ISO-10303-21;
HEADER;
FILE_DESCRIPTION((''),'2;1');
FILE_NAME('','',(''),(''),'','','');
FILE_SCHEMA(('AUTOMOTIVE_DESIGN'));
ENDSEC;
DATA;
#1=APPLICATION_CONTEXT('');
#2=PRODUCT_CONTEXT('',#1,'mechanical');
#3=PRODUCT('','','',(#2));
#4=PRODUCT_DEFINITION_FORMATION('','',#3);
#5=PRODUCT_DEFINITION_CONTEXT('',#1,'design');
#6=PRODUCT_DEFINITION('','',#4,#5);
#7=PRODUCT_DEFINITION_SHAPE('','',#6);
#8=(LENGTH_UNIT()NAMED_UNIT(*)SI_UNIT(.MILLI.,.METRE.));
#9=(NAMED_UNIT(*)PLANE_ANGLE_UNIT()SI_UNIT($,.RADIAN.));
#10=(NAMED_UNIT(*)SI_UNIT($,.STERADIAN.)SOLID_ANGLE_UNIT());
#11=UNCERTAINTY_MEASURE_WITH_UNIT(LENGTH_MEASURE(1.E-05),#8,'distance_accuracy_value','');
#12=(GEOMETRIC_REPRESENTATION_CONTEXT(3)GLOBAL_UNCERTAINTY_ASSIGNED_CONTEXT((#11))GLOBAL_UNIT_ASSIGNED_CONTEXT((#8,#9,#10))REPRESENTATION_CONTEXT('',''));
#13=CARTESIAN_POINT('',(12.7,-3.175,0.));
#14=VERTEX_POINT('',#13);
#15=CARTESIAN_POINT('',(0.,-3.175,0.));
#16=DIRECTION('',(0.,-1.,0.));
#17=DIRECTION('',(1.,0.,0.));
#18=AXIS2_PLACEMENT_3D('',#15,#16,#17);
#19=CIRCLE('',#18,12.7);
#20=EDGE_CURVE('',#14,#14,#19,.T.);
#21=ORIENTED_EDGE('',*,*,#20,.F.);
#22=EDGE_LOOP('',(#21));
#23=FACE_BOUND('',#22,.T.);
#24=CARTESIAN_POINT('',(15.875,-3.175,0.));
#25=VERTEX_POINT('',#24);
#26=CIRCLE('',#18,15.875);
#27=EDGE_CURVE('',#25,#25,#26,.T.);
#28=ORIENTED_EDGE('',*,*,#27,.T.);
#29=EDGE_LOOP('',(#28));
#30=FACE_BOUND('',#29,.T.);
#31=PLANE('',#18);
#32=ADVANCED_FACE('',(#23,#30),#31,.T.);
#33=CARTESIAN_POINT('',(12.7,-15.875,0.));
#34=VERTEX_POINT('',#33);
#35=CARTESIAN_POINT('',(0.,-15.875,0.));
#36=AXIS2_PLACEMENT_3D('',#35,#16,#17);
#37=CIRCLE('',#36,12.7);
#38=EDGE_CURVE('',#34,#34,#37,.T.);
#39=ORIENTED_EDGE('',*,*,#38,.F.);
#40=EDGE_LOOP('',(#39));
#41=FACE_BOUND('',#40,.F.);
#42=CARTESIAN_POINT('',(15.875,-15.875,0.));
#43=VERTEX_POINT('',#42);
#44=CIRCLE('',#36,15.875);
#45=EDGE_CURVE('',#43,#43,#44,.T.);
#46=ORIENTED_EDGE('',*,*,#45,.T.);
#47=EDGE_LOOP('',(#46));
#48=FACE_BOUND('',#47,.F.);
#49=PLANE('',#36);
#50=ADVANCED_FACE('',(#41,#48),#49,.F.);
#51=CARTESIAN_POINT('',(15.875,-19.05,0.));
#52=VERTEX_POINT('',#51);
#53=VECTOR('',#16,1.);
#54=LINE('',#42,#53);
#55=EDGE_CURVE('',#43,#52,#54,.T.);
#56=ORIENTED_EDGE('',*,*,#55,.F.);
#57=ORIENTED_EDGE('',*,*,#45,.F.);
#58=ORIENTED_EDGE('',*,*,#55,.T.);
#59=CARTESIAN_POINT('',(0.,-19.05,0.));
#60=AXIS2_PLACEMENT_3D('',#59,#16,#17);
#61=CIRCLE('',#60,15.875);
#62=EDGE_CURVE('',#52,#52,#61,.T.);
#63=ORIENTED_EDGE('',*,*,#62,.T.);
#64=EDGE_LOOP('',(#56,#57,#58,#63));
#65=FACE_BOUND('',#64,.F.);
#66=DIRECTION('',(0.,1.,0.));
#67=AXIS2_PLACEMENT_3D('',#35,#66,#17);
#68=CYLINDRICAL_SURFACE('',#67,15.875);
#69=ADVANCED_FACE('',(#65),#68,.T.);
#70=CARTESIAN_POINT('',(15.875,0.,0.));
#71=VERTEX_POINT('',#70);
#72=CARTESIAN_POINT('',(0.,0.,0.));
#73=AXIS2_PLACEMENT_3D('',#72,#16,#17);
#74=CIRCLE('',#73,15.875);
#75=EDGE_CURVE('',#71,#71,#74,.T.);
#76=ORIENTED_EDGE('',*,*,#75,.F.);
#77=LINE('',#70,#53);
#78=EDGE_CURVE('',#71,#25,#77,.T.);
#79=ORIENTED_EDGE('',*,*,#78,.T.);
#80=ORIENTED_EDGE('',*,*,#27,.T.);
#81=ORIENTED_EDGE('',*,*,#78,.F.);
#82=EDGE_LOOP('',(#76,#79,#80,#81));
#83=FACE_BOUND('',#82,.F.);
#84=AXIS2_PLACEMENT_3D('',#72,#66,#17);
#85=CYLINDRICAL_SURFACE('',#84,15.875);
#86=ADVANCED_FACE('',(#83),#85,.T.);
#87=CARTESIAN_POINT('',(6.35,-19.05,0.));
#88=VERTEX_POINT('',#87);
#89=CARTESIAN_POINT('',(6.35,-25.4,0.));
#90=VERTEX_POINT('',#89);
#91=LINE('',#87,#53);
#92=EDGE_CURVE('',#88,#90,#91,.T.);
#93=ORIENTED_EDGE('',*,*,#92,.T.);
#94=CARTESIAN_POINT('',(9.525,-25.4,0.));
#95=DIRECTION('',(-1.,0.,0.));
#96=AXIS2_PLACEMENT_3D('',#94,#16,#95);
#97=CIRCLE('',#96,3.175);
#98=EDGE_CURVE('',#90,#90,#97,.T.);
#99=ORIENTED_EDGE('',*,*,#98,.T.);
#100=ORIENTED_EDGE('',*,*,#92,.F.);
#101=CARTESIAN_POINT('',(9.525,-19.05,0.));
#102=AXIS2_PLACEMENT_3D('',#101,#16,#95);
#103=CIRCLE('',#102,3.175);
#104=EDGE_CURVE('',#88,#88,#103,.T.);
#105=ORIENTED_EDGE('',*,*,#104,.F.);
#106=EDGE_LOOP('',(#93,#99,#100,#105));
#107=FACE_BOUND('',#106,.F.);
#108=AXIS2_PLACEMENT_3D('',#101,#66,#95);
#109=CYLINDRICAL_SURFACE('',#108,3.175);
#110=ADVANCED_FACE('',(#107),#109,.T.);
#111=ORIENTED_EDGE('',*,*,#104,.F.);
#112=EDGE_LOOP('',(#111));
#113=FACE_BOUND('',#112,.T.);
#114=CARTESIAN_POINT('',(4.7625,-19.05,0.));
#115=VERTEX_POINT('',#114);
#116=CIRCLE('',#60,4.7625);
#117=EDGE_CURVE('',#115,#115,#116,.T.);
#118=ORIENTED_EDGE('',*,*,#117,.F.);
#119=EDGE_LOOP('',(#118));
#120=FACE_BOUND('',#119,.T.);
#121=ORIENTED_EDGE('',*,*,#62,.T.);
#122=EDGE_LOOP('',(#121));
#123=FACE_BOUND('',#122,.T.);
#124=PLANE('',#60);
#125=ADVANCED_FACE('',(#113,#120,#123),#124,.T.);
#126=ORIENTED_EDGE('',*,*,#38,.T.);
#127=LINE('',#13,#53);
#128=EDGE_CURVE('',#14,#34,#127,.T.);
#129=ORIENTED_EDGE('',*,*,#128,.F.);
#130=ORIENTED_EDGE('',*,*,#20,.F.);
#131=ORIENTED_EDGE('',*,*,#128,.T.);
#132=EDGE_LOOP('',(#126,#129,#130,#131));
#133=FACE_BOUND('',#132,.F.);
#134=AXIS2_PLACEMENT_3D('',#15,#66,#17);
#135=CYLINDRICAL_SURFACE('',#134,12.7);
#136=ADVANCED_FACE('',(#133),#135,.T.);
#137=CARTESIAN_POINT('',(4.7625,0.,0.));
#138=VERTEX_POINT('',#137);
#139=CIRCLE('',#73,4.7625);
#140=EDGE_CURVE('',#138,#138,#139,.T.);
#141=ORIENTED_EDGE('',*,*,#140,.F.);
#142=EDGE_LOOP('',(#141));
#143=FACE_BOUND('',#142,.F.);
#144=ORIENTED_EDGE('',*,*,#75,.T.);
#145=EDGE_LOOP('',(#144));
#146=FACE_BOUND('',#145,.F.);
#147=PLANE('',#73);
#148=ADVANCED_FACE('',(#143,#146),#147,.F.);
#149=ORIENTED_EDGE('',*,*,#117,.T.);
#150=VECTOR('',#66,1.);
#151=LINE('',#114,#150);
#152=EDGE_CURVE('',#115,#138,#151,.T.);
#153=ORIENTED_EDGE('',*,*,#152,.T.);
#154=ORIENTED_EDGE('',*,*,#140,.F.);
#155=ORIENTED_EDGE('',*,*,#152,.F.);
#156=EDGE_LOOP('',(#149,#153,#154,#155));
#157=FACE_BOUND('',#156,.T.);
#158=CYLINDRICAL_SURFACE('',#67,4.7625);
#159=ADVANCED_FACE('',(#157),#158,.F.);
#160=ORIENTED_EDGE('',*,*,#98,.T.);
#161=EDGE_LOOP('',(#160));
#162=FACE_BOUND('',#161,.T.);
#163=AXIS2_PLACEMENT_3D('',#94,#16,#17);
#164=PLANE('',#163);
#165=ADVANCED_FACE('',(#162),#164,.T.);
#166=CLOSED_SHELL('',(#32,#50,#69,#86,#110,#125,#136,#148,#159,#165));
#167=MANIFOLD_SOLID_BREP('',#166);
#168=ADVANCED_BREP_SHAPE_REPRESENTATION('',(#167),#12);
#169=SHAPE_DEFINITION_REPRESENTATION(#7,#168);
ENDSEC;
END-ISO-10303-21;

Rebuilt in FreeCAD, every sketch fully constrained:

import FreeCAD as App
import Part
import Sketcher
from FreeCAD import Vector
Q = App.Units.Quantity

doc = App.newDocument("Part")
params = doc.addObject("Spreadsheet::Sheet", "Params")
for row, (alias, value) in enumerate([
    ("sketch1_diameter", "1.25 in"),
    ("sketch1_diameter2", "0.375 in"),
    ("pad1_length", "0.125 in"),
    ("sketch2_diameter", "1 in"),
    ("sketch2_diameter2", "0.375 in"),
    ("pad2_length", "0.5 in"),
    ("sketch3_diameter", "1.25 in"),
    ("sketch3_diameter2", "0.375 in"),
    ("pad3_length", "0.125 in"),
    ("sketch4_diameter", "0.25 in"),
    ("pad4_length", "0.25 in"),
], start=1):
    params.set(f"A{row}", alias)
    params.set(f"B{row}", "=" + value)
    params.setAlias(f"B{row}", alias)

body = doc.addObject("PartDesign::Body", "Body")

sketch1 = body.newObject("Sketcher::SketchObject", "Sketch")
sketch1.AttachmentSupport = (doc.getObject("XZ_Plane"), [""])
sketch1.MapMode = "FlatFace"
sketch1.addGeometry([
    Part.Circle(Vector(0, 0, 0), Vector(0, 0, 1), 15.9),
    Part.Circle(Vector(0, 0, 0), Vector(0, 0, 1), 4.8),
], False)
sketch1.addConstraint([
    Sketcher.Constraint("Coincident", 0, 3, -1, 1),
    Sketcher.Constraint("Coincident", 1, 3, -1, 1),
    Sketcher.Constraint("Diameter", 0, Q("1.25 in")),
    Sketcher.Constraint("Diameter", 1, Q("0.375 in")),
])
sketch1.setExpression("Constraints[2]", "Params.sketch1_diameter")
sketch1.setExpression("Constraints[3]", "Params.sketch1_diameter2")
pad1 = body.newObject("PartDesign::Pad", "Pad")
pad1.Profile = sketch1
pad1.setExpression("Length", "Params.pad1_length")

sketch2 = body.newObject("Sketcher::SketchObject", "Sketch001")
sketch2.AttachmentSupport = (doc.getObject("XZ_Plane"), [""])
sketch2.MapMode = "FlatFace"
sketch2.AttachmentOffset = App.Placement(Vector(0, 0, 0.125 * 25.4), App.Rotation())
sketch2.addGeometry([
    Part.Circle(Vector(0, 0, 0), Vector(0, 0, 1), 12.7),
    Part.Circle(Vector(0, 0, 0), Vector(0, 0, 1), 4.8),
], False)
sketch2.addConstraint([
    Sketcher.Constraint("Coincident", 0, 3, -1, 1),
    Sketcher.Constraint("Coincident", 1, 3, -1, 1),
    Sketcher.Constraint("Diameter", 0, Q("1 in")),
    Sketcher.Constraint("Diameter", 1, Q("0.375 in")),
])
sketch2.setExpression("Constraints[2]", "Params.sketch2_diameter")
sketch2.setExpression("Constraints[3]", "Params.sketch2_diameter2")
pad2 = body.newObject("PartDesign::Pad", "Pad001")
pad2.Profile = sketch2
pad2.setExpression("Length", "Params.pad2_length")

sketch3 = body.newObject("Sketcher::SketchObject", "Sketch002")
sketch3.AttachmentSupport = (doc.getObject("XZ_Plane"), [""])
sketch3.MapMode = "FlatFace"
sketch3.AttachmentOffset = App.Placement(Vector(0, 0, 0.625 * 25.4), App.Rotation())
sketch3.addGeometry([
    Part.Circle(Vector(0, 0, 0), Vector(0, 0, 1), 15.9),
    Part.Circle(Vector(0, 0, 0), Vector(0, 0, 1), 4.8),
], False)
sketch3.addConstraint([
    Sketcher.Constraint("Coincident", 0, 3, -1, 1),
    Sketcher.Constraint("Coincident", 1, 3, -1, 1),
    Sketcher.Constraint("Diameter", 0, Q("1.25 in")),
    Sketcher.Constraint("Diameter", 1, Q("0.375 in")),
])
sketch3.setExpression("Constraints[2]", "Params.sketch3_diameter")
sketch3.setExpression("Constraints[3]", "Params.sketch3_diameter2")
pad3 = body.newObject("PartDesign::Pad", "Pad002")
pad3.Profile = sketch3
pad3.setExpression("Length", "Params.pad3_length")

sketch4 = body.newObject("Sketcher::SketchObject", "Sketch003")
sketch4.AttachmentSupport = (doc.getObject("XZ_Plane"), [""])
sketch4.MapMode = "FlatFace"
sketch4.AttachmentOffset = App.Placement(Vector(0, 0, 0.75 * 25.4), App.Rotation())
sketch4.addGeometry(Part.Circle(Vector(9.5, 0, 0), Vector(0, 0, 1), 3.2), False)
sketch4.addConstraint([
    Sketcher.Constraint("PointOnObject", 0, 3, -1),
    Sketcher.Constraint("Diameter", 0, Q("0.25 in")),
    Sketcher.Constraint("DistanceX", -1, 1, 0, 3, Q("0.375 in")),
])
sketch4.setExpression("Constraints[1]", "Params.sketch4_diameter")
pad4 = body.newObject("PartDesign::Pad", "Pad003")
pad4.Profile = sketch4
pad4.setExpression("Length", "Params.pad4_length")

doc.recompute()
